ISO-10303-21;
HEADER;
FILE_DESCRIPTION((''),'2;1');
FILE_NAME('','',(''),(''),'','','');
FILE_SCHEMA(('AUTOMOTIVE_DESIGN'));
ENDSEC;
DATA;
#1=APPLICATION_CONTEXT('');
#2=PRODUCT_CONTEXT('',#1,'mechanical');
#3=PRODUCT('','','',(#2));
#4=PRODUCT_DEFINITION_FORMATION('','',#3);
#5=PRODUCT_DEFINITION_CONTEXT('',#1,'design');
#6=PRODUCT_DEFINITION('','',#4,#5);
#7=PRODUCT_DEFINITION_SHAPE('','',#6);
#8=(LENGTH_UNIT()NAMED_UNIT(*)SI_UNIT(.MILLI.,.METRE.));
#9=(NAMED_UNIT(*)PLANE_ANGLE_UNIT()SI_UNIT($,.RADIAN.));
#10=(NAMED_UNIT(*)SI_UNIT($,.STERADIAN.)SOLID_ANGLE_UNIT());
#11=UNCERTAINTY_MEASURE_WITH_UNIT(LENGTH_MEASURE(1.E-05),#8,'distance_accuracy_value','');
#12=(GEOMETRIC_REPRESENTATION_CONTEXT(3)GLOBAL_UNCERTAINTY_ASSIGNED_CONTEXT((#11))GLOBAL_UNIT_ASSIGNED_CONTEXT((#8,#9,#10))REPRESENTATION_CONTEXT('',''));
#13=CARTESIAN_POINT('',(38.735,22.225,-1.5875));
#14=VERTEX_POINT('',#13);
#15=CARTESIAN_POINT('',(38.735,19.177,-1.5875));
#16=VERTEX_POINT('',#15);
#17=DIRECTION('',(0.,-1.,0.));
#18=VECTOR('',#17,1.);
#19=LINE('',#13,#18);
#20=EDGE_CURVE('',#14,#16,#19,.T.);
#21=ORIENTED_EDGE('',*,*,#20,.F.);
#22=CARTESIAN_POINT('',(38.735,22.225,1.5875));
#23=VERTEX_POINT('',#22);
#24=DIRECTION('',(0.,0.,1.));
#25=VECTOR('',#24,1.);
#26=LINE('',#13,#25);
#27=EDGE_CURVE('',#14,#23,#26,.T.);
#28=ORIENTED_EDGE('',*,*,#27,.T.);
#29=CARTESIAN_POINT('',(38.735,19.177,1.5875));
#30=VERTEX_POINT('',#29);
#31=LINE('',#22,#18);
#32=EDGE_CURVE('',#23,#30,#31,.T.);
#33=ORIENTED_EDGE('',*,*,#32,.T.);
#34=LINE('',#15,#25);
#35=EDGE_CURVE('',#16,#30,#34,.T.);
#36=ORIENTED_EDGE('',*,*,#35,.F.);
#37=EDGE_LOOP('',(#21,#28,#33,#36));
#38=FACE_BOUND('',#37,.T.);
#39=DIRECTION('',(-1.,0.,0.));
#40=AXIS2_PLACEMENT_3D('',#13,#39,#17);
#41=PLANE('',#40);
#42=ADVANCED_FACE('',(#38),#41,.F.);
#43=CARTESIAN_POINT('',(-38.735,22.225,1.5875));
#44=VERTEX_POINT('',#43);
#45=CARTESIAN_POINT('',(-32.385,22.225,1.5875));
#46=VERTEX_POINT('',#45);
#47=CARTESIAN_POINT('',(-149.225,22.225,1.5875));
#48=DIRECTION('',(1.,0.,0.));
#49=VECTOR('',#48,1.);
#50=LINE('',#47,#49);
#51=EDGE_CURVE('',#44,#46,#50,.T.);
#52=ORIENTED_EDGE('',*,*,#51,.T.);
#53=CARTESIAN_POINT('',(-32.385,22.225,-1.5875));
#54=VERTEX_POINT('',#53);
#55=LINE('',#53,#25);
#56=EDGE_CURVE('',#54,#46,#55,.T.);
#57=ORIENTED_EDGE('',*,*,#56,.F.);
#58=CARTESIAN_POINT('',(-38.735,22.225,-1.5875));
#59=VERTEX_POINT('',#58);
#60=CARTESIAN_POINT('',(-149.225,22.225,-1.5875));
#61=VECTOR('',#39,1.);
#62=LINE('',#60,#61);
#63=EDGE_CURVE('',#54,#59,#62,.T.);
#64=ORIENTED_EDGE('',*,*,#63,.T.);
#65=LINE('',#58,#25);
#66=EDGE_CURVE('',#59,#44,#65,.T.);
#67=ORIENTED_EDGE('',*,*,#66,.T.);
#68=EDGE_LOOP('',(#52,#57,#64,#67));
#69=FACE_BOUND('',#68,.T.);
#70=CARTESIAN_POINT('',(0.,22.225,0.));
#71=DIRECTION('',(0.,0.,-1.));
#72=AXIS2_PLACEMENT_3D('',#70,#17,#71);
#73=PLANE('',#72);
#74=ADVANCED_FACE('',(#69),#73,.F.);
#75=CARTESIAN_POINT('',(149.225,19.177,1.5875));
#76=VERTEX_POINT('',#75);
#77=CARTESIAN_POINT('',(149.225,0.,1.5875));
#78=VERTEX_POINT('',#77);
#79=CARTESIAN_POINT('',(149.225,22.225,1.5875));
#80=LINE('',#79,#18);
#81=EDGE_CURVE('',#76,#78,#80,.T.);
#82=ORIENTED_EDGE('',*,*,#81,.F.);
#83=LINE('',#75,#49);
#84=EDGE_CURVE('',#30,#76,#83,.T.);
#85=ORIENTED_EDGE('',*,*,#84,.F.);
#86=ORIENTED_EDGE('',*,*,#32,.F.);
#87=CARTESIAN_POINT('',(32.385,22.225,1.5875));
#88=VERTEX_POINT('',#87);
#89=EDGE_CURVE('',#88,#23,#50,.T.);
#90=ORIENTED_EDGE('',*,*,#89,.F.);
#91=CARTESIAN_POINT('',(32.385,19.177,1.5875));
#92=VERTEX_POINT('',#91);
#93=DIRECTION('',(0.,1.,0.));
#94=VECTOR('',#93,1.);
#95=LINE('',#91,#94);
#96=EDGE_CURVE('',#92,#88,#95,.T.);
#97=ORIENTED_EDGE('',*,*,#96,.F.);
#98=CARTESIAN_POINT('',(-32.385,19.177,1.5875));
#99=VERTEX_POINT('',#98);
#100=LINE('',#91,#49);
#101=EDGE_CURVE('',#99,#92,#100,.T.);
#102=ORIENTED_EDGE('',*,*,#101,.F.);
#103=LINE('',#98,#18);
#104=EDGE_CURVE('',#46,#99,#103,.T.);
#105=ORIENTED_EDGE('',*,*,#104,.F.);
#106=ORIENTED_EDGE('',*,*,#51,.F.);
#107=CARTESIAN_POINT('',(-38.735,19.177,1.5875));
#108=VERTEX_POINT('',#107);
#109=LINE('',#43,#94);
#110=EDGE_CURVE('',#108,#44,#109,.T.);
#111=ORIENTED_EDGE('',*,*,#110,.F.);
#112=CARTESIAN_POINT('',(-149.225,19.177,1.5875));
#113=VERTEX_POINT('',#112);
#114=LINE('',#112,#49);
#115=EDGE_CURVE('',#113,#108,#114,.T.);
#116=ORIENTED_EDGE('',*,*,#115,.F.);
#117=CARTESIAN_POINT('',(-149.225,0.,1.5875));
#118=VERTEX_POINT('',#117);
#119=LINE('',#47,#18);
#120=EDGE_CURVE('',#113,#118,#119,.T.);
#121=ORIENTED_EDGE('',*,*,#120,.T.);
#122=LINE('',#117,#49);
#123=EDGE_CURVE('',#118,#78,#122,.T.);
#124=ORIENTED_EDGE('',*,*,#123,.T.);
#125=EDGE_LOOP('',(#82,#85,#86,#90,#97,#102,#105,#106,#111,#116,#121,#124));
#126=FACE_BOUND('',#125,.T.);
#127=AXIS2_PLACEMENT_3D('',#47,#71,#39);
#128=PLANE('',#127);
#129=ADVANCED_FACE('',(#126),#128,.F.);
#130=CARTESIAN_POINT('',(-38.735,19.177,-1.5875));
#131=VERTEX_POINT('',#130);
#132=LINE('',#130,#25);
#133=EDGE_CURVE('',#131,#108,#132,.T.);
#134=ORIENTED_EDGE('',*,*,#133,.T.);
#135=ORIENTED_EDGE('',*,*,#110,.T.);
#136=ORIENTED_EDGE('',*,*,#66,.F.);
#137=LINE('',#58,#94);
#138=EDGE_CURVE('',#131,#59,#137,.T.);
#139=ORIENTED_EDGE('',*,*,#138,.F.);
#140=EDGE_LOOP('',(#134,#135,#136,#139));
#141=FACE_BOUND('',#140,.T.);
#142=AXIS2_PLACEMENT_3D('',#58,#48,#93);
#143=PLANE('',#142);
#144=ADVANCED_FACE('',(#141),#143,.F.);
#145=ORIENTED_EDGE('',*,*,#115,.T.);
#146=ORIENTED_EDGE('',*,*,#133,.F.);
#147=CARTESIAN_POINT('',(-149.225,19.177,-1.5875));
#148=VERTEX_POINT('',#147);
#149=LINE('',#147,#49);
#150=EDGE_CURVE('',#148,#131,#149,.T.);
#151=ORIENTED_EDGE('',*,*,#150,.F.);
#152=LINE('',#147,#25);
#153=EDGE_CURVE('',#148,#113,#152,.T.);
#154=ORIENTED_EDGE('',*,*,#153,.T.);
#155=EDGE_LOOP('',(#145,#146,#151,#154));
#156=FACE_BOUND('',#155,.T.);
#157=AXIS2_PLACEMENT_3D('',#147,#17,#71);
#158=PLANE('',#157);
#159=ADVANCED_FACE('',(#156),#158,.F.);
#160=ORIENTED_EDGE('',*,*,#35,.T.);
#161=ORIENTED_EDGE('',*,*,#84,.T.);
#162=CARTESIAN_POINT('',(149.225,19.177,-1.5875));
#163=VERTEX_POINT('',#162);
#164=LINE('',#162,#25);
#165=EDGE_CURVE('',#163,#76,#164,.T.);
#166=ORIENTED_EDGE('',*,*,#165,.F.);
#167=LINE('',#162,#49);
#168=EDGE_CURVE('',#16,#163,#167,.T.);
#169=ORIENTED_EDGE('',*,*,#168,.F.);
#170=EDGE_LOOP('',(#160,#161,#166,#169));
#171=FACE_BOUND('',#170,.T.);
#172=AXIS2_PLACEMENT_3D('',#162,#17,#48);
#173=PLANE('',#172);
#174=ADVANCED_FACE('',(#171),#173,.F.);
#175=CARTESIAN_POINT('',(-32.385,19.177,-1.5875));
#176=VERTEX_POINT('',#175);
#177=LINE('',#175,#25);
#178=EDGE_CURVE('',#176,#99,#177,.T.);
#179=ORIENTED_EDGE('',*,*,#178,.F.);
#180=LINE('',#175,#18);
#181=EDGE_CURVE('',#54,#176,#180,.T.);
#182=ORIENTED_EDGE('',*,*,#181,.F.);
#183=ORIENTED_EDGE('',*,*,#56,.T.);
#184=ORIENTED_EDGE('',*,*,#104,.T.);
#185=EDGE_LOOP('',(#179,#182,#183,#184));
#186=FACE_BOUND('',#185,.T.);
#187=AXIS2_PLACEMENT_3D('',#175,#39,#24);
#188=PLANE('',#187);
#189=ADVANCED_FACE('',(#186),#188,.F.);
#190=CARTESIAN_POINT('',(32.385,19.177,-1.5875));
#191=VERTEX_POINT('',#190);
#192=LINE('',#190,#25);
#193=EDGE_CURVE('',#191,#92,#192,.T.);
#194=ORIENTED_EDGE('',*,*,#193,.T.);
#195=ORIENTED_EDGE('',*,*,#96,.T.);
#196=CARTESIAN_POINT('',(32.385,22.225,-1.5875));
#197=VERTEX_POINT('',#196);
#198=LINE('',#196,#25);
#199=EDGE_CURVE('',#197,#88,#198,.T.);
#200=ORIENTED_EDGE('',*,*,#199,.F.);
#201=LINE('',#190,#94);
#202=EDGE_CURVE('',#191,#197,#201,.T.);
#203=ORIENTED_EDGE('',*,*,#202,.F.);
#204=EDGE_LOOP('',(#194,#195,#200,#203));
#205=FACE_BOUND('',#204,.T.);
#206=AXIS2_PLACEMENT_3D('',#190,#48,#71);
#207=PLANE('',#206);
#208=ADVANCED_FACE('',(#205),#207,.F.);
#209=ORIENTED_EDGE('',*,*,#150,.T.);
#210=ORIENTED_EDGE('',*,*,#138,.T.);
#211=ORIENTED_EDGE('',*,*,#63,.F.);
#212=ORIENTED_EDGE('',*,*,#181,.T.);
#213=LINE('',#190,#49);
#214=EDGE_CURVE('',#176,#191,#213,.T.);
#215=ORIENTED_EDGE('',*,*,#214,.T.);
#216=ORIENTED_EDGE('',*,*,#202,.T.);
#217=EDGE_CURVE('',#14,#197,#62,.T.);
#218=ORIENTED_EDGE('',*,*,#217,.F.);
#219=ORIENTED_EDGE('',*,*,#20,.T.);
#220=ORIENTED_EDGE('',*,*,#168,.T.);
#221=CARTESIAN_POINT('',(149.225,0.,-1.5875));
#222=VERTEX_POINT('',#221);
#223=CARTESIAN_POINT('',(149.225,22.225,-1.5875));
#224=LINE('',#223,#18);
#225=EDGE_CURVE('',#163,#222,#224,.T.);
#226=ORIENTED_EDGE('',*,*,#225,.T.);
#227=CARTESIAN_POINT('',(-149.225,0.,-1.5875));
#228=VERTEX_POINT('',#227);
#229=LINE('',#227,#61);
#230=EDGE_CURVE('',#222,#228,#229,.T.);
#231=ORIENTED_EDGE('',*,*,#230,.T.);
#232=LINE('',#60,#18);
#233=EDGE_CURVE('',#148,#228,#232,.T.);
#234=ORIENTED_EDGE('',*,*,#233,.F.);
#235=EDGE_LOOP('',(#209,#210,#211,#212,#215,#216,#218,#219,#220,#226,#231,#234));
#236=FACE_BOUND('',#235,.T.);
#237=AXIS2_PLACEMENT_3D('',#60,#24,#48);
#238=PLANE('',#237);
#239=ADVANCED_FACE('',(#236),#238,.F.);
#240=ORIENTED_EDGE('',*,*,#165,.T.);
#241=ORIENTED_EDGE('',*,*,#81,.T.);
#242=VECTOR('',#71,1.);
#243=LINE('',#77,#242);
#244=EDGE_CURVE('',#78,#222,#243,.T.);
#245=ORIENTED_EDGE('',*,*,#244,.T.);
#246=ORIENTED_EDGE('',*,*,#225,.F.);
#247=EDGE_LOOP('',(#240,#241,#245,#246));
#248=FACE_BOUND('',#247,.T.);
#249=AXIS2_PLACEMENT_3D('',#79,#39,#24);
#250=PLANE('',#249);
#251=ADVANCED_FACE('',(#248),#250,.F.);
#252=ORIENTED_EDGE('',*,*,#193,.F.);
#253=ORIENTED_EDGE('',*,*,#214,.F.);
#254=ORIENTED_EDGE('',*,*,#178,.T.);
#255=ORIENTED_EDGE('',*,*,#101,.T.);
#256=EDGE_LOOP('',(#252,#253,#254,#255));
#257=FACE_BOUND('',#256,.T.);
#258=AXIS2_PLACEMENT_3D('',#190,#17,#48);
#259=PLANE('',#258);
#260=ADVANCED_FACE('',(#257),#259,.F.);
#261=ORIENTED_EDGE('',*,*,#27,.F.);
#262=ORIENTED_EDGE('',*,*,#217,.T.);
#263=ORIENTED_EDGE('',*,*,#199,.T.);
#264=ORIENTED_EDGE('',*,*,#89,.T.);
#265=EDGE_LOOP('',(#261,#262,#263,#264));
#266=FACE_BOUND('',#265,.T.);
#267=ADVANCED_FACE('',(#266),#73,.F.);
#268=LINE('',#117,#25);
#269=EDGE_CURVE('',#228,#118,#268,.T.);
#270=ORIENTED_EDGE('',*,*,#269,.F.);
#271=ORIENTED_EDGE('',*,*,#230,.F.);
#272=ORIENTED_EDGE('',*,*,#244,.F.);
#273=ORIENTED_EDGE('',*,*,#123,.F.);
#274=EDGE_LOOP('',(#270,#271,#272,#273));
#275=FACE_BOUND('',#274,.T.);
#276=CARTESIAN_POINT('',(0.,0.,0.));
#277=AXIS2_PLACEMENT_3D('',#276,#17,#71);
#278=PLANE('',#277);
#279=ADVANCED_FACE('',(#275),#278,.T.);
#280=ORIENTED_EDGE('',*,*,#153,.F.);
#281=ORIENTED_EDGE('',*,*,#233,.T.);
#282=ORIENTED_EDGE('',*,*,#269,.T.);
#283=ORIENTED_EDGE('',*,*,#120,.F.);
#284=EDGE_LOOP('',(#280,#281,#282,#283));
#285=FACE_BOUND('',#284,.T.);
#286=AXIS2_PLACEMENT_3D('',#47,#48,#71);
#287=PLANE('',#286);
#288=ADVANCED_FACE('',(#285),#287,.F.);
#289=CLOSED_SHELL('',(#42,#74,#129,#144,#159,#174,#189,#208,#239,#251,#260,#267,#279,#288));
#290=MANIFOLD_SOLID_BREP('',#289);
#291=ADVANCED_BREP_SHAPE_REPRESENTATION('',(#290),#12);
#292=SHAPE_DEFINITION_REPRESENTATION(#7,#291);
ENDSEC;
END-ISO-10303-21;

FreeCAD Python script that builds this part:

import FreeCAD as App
import Part
import Sketcher

V = App.Vector
Q = App.Units.Quantity

doc = App.newDocument("Part")
body = doc.addObject("PartDesign::Body", "Body")

# Sketch on XZ plane
sketch1 = doc.addObject("Sketcher::SketchObject", "Sketch")
body.addObject(sketch1)
sketch1.AttachmentSupport = (doc.XZ_Plane, [""])
sketch1.MapMode = "FlatFace"
sketch1.addGeometry(Part.LineSegment(V(-149.2, -1.6, 0), V(-149.2, 1.6, 0)), False)
sketch1.addGeometry(Part.LineSegment(V(-149.2, 1.6, 0), V(149.2, 1.6, 0)), False)
sketch1.addGeometry(Part.LineSegment(V(149.2, 1.6, 0), V(149.2, -1.6, 0)), False)
sketch1.addGeometry(Part.LineSegment(V(149.2, -1.6, 0), V(-149.2, -1.6, 0)), False)
sketch1.addConstraint(Sketcher.Constraint("Coincident", 0, 2, 1, 1))
sketch1.addConstraint(Sketcher.Constraint("Coincident", 1, 2, 2, 1))
sketch1.addConstraint(Sketcher.Constraint("Coincident", 2, 2, 3, 1))
sketch1.addConstraint(Sketcher.Constraint("Coincident", 3, 2, 0, 1))
sketch1.addConstraint(Sketcher.Constraint("Vertical", 0))
sketch1.addConstraint(Sketcher.Constraint("Horizontal", 1))
sketch1.addConstraint(Sketcher.Constraint("Vertical", 2))
sketch1.addConstraint(Sketcher.Constraint("Horizontal", 3))
sketch1.addConstraint(Sketcher.Constraint("Symmetric", 0, 2, 2, 2, -1, 1))
sketch1.addConstraint(Sketcher.Constraint("DistanceX", 1, 1, 1, 2, Q("11.75 in")))
sketch1.addConstraint(Sketcher.Constraint("DistanceY", 0, 1, 0, 2, Q("0.125 in")))
pad1 = doc.addObject("PartDesign::Pad", "Pad")
body.addObject(pad1)
pad1.Profile = sketch1
pad1.Length = Q("0.875 in")
pad1.Reversed = True

# Sketch on XY plane
sketch2 = doc.addObject("Sketcher::SketchObject", "Sketch001")
body.addObject(sketch2)
sketch2.AttachmentSupport = (doc.XY_Plane, [""])
sketch2.MapMode = "FlatFace"
sketch2.AttachmentOffset = App.Placement(V(0, 0, 0.0625 * 25.4), App.Rotation())
sketch2.addGeometry(Part.LineSegment(V(-149.2, 22.2, 0), V(-149.2, 19.2, 0)), False)
sketch2.addGeometry(Part.LineSegment(V(-149.2, 19.2, 0), V(-38.7, 19.2, 0)), False)
sketch2.addGeometry(Part.LineSegment(V(-38.7, 19.2, 0), V(-38.7, 22.2, 0)), False)
sketch2.addGeometry(Part.LineSegment(V(-38.7, 22.2, 0), V(-149.2, 22.2, 0)), False)
sketch2.addGeometry(Part.LineSegment(V(38.7, 22.2, 0), V(38.7, 19.2, 0)), False)
sketch2.addGeometry(Part.LineSegment(V(38.7, 19.2, 0), V(149.2, 19.2, 0)), False)
sketch2.addGeometry(Part.LineSegment(V(149.2, 19.2, 0), V(149.2, 22.2, 0)), False)
sketch2.addGeometry(Part.LineSegment(V(149.2, 22.2, 0), V(38.7, 22.2, 0)), False)
sketch2.addGeometry(Part.LineSegment(V(-32.4, 22.2, 0), V(-32.4, 19.2, 0)), False)
sketch2.addGeometry(Part.LineSegment(V(-32.4, 19.2, 0), V(32.4, 19.2, 0)), False)
sketch2.addGeometry(Part.LineSegment(V(32.4, 19.2, 0), V(32.4, 22.2, 0)), False)
sketch2.addGeometry(Part.LineSegment(V(32.4, 22.2, 0), V(-32.4, 22.2, 0)), False)
sketch2.addConstraint(Sketcher.Constraint("Coincident", 0, 2, 1, 1))
sketch2.addConstraint(Sketcher.Constraint("Coincident", 1, 2, 2, 1))
sketch2.addConstraint(Sketcher.Constraint("Coincident", 2, 2, 3, 1))
sketch2.addConstraint(Sketcher.Constraint("Coincident", 3, 2, 0, 1))
sketch2.addConstraint(Sketcher.Constraint("Coincident", 4, 2, 5, 1))
sketch2.addConstraint(Sketcher.Constraint("Coincident", 5, 2, 6, 1))
sketch2.addConstraint(Sketcher.Constraint("Coincident", 6, 2, 7, 1))
sketch2.addConstraint(Sketcher.Constraint("Coincident", 7, 2, 4, 1))
sketch2.addConstraint(Sketcher.Constraint("Coincident", 8, 2, 9, 1))
sketch2.addConstraint(Sketcher.Constraint("Coincident", 9, 2, 10, 1))
sketch2.addConstraint(Sketcher.Constraint("Coincident", 10, 2, 11, 1))
sketch2.addConstraint(Sketcher.Constraint("Coincident", 11, 2, 8, 1))
sketch2.addConstraint(Sketcher.Constraint("Vertical", 0))
sketch2.addConstraint(Sketcher.Constraint("Horizontal", 1))
sketch2.addConstraint(Sketcher.Constraint("Vertical", 2))
sketch2.addConstraint(Sketcher.Constraint("Horizontal", 3))
sketch2.addConstraint(Sketcher.Constraint("Vertical", 4))
sketch2.addConstraint(Sketcher.Constraint("Horizontal", 5))
sketch2.addConstraint(Sketcher.Constraint("Vertical", 6))
sketch2.addConstraint(Sketcher.Constraint("Horizontal", 7))
sketch2.addConstraint(Sketcher.Constraint("Vertical", 8))
sketch2.addConstraint(Sketcher.Constraint("Horizontal", 9))
sketch2.addConstraint(Sketcher.Constraint("Vertical", 10))
sketch2.addConstraint(Sketcher.Constraint("Horizontal", 11))
sketch2.addConstraint(Sketcher.Constraint("Symmetric", 1, 2, 4, 2, -2))
sketch2.addConstraint(Sketcher.Constraint("Symmetric", 3, 2, 6, 2, -2))
sketch2.addConstraint(Sketcher.Constraint("Horizontal", 5, 2, 8, 2))
sketch2.addConstraint(Sketcher.Constraint("Horizontal", 7, 2, 10, 2))
sketch2.addConstraint(Sketcher.Constraint("DistanceX", 1, 1, 1, 2, Q("4.35 in")))
sketch2.addConstraint(Sketcher.Constraint("DistanceX", 9, 1, 9, 2, Q("2.55 in")))
sketch2.addConstraint(Sketcher.Constraint("DistanceY", 0, 2, 0, 1, Q("0.12 in")))
sketch2.addConstraint(Sketcher.Constraint("DistanceX", 0, 2, 4, 2, Q("7.4 in")))
sketch2.addConstraint(Sketcher.Constraint("DistanceX", 8, 2, 4, 2, Q("2.8 in")))
sketch2.addConstraint(Sketcher.Constraint("DistanceY", -1, 1, 0, 2, Q("0.755 in")))
pocket1 = doc.addObject("PartDesign::Pocket", "Pocket")
body.addObject(pocket1)
pocket1.Profile = sketch2
pocket1.Type = "ThroughAll"

doc.recompute()
